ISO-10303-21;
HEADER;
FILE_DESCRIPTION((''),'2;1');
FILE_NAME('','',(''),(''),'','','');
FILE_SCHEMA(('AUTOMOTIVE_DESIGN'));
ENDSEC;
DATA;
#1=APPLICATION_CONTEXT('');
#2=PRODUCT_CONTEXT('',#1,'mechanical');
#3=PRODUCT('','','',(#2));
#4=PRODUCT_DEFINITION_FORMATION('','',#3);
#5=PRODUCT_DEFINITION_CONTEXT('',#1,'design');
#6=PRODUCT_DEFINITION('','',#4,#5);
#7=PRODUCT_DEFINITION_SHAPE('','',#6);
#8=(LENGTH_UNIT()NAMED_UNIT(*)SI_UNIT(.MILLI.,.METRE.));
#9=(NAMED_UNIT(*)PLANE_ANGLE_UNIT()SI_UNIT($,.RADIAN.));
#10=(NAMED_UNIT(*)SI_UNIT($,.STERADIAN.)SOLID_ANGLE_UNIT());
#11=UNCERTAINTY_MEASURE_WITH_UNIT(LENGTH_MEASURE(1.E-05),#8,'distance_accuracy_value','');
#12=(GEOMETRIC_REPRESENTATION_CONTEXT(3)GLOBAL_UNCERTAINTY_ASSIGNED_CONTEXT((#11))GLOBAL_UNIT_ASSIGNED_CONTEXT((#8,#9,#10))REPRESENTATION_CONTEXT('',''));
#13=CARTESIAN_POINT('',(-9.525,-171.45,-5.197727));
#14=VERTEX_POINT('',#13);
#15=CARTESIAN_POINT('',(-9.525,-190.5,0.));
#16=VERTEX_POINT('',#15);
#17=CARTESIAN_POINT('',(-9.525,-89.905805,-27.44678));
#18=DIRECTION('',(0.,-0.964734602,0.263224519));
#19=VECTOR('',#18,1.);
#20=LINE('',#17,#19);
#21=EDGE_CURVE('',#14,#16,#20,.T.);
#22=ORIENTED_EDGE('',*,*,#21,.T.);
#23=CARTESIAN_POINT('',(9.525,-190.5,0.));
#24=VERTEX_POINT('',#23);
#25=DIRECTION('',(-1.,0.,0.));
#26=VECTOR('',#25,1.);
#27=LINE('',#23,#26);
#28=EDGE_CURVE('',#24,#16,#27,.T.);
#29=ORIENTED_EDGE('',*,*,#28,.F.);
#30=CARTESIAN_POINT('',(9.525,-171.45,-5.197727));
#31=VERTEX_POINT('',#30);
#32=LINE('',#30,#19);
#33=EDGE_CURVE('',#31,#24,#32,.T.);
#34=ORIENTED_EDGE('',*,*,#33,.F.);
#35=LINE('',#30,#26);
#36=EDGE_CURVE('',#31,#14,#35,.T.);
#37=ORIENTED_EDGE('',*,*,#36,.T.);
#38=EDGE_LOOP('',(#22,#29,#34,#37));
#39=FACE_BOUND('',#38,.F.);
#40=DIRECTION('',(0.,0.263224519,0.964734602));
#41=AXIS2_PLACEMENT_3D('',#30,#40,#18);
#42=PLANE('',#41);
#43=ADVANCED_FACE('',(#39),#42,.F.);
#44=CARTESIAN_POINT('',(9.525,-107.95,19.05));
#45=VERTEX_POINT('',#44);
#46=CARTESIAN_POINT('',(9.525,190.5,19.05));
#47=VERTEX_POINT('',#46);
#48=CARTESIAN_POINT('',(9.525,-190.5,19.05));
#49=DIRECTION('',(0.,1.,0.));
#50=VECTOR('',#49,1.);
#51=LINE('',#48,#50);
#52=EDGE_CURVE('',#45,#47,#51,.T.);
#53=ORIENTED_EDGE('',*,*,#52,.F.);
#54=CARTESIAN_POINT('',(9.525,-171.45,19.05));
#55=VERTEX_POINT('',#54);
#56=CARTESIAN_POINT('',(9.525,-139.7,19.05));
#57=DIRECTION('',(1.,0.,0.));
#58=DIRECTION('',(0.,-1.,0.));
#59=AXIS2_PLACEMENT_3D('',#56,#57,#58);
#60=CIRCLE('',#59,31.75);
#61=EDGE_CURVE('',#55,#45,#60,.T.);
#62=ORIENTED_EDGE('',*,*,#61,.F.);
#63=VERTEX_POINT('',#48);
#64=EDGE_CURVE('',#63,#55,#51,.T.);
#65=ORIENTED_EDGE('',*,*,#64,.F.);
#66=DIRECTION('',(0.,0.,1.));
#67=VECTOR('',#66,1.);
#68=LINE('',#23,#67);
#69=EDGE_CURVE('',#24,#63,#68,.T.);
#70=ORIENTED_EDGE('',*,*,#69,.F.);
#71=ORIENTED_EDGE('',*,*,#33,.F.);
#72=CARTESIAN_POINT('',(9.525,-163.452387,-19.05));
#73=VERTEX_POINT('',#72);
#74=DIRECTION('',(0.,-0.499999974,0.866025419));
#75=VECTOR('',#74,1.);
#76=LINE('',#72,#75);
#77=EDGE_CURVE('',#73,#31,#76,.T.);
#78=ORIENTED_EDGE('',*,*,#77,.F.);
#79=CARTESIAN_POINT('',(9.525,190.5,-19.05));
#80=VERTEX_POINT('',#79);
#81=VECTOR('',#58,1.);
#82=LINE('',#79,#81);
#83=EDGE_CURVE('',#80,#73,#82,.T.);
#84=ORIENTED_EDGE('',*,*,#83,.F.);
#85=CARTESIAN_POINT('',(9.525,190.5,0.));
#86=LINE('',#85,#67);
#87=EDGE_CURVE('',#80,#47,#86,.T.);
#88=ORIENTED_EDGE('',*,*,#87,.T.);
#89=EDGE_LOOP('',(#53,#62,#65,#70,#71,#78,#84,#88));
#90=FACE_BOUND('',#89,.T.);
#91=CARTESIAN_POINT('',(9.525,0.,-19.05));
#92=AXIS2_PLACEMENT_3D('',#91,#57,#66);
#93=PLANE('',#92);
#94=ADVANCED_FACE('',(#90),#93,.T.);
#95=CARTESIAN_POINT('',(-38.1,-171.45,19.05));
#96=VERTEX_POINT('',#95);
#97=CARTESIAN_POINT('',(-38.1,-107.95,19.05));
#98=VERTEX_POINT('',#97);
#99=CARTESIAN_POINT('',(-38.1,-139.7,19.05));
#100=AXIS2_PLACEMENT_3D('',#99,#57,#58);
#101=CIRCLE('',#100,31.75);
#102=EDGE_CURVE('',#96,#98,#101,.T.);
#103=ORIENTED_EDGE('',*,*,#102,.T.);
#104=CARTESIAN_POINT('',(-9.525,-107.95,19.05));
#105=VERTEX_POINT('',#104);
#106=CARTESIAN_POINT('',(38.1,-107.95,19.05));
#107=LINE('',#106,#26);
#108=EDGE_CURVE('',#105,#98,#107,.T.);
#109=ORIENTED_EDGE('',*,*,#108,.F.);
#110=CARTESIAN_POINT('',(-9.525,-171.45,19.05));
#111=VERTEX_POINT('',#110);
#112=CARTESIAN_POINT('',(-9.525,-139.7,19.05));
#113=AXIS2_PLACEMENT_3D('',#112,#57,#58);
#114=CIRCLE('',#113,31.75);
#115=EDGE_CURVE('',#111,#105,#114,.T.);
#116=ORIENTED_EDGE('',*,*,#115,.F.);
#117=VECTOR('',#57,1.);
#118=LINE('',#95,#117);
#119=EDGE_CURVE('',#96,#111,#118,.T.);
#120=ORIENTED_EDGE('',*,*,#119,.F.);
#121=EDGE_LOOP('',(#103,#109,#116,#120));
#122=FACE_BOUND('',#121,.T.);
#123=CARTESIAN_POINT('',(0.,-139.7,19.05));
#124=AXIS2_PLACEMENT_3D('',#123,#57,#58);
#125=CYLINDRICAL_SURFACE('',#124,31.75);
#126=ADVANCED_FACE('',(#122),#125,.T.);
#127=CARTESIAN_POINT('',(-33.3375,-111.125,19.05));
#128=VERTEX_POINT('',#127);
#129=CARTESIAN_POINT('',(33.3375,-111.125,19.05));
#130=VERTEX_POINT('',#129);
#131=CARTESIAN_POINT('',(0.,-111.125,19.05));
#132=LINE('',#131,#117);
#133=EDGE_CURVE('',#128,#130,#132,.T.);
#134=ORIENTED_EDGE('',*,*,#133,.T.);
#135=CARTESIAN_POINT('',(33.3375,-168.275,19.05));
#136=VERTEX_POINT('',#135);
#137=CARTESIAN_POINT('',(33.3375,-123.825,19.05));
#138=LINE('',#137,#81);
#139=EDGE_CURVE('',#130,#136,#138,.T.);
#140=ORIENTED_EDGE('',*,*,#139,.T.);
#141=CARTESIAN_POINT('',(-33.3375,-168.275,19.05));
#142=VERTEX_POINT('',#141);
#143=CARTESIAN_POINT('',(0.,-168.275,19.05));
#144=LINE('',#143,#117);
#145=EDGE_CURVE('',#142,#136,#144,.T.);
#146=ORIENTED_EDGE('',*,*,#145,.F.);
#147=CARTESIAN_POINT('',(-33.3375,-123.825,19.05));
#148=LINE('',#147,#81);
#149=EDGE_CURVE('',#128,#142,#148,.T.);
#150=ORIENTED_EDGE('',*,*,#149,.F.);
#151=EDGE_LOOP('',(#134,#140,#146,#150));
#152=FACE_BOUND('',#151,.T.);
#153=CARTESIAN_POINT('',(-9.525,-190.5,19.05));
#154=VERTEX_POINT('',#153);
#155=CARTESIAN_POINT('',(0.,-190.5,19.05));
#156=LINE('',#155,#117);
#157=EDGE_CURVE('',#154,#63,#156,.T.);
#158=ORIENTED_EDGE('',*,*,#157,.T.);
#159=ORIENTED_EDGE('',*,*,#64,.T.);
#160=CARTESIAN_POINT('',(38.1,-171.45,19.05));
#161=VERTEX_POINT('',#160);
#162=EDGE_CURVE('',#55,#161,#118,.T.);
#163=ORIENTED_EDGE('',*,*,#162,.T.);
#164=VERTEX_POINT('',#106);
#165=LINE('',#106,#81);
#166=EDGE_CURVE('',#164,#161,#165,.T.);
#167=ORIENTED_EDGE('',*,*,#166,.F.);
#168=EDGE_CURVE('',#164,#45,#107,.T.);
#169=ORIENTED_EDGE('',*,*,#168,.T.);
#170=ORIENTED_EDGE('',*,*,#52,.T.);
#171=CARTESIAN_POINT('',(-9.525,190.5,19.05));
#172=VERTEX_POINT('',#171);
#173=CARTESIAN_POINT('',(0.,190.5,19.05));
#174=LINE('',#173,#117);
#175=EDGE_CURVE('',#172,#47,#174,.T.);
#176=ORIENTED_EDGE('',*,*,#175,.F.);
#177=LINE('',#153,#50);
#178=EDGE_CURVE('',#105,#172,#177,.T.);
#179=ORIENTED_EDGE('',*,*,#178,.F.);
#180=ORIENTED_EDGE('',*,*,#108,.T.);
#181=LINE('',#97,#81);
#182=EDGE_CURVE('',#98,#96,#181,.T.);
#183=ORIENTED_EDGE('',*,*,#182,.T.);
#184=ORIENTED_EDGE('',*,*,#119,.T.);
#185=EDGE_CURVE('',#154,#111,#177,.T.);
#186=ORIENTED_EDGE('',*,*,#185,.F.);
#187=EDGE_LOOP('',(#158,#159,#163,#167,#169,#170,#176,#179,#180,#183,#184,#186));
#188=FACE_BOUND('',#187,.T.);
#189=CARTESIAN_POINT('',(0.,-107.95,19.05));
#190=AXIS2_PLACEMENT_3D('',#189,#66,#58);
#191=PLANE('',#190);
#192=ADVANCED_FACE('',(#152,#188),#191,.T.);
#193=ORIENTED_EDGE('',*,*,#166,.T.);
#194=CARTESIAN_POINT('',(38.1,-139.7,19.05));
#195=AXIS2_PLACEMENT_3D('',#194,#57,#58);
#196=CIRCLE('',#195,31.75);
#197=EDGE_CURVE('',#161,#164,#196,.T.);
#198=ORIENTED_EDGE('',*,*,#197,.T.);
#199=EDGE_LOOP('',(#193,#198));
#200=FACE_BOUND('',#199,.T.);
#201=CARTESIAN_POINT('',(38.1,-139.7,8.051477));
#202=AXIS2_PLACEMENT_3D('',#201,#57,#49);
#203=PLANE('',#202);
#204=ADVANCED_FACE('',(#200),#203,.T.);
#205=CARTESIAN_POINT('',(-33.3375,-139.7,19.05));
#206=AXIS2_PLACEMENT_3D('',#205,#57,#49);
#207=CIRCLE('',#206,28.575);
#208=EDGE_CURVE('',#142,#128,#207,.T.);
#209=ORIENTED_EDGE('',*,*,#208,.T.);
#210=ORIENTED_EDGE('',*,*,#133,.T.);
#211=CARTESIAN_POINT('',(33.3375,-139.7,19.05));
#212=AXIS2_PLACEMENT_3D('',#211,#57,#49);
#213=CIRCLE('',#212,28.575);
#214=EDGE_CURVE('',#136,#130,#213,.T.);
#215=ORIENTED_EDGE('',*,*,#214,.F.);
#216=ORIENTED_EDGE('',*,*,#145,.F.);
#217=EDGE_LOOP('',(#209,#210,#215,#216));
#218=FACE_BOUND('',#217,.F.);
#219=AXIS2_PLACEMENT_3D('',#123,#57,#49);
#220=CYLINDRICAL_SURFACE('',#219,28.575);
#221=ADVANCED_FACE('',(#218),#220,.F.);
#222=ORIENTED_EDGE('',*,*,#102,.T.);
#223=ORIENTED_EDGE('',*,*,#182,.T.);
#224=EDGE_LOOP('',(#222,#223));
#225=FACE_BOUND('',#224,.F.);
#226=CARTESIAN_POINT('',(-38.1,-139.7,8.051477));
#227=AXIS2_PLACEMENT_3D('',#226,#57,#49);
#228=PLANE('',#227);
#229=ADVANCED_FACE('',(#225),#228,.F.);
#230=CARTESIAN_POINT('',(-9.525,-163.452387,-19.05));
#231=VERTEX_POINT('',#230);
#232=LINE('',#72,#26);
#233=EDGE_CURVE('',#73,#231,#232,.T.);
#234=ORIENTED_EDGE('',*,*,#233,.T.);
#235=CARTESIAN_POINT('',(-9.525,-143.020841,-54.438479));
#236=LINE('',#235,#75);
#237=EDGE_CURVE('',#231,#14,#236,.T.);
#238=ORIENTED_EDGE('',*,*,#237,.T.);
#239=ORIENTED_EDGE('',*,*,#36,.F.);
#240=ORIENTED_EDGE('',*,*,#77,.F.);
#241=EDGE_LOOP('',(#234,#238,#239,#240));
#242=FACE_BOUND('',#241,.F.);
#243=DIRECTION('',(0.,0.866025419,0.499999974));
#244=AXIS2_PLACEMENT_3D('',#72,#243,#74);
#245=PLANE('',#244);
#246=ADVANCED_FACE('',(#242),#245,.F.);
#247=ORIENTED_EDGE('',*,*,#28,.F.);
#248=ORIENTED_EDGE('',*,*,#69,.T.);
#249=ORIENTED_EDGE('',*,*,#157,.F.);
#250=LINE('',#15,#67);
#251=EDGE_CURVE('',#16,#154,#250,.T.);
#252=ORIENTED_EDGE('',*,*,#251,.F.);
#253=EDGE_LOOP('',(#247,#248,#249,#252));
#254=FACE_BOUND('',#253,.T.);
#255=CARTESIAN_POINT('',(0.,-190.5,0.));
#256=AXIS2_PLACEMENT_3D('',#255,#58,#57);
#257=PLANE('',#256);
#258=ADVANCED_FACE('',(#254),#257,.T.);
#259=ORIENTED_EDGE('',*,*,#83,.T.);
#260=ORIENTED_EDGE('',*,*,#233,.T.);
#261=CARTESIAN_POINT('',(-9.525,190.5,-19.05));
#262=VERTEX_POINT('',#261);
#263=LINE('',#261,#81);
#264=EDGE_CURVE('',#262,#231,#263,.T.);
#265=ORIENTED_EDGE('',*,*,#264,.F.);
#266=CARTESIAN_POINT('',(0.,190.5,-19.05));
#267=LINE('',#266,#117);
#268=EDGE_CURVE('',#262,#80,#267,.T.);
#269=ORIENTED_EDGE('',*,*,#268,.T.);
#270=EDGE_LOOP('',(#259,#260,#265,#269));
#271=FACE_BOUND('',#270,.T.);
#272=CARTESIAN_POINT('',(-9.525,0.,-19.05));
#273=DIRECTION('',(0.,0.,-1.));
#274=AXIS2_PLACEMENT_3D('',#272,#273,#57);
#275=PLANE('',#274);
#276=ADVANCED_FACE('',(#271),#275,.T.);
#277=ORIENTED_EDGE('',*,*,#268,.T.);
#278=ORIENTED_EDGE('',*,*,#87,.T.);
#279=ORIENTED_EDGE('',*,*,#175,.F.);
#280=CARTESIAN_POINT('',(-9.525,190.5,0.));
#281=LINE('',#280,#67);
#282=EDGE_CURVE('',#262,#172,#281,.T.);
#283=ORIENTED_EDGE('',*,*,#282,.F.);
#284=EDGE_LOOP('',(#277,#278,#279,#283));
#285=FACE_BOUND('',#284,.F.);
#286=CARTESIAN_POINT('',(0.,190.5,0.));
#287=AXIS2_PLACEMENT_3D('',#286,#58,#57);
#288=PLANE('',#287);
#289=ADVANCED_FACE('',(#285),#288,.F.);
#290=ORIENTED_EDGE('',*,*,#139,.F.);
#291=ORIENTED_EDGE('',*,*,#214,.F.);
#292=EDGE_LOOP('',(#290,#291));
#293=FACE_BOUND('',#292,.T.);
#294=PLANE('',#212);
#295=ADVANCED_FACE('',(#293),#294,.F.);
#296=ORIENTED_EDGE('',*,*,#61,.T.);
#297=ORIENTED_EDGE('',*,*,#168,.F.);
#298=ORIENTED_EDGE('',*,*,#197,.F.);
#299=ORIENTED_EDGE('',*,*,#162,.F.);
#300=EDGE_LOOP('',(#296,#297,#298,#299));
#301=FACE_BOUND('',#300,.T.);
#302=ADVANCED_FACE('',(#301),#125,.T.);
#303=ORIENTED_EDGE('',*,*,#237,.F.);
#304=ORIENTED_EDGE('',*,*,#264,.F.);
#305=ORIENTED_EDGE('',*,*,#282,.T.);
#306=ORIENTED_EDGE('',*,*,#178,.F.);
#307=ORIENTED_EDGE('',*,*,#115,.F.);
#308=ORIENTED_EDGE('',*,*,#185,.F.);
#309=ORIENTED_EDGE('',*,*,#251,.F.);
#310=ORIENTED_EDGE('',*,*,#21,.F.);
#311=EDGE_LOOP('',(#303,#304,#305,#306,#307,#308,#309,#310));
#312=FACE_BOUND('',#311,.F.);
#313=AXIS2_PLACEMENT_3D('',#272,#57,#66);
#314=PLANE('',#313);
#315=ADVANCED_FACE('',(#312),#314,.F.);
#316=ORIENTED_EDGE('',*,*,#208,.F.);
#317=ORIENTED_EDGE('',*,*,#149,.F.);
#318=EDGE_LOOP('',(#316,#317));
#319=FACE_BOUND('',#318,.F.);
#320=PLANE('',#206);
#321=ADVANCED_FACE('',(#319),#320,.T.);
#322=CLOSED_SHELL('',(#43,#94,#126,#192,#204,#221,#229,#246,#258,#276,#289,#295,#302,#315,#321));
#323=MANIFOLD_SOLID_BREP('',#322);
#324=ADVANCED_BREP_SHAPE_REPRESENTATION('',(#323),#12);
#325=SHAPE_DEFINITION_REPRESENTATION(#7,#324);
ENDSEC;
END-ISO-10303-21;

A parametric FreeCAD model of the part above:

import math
import FreeCAD as App
import Part
import Sketcher
Q = App.Units.Quantity


def add_polygon(sketch, points):
    """Adds a closed chain of lines whose ends are joined by coincident constraints."""
    first, n = sketch.GeometryCount, len(points)
    for a, b in zip(points, points[1:] + points[:1]):
        sketch.addGeometry(Part.LineSegment(App.Vector(*a, 0), App.Vector(*b, 0)), False)
    for i in range(n):
        sketch.addConstraint(Sketcher.Constraint("Coincident", first + i, 2, first + (i + 1) % n, 1))

doc = App.newDocument("Part")
params = doc.addObject("Spreadsheet::Sheet", "Params")
for row, (alias, value) in enumerate([
    ("sketch1_height", "1.5 in"),
    ("sketch1_width", "0.75 in"),
    ("pad1_length", "15 in"),
    ("sketch2_radius", "1.25 in"),
    ("pad2_length", "3 in"),
    ("sketch3_width", "2.625 in"),
    ("sketch3_height", "1.125 in"),
    ("groove_angle", "360 deg"),
    ("sketch4_height", "0.75 in"),
], start=1):
    params.set(f"A{row}", alias)
    params.set(f"B{row}", "=" + value)
    params.setAlias(f"B{row}", alias)

body = doc.addObject("PartDesign::Body", "Body")

sketch1 = doc.addObject("Sketcher::SketchObject", "Sketch")
body.addObject(sketch1)
sketch1.AttachmentSupport = (doc.XZ_Plane, [""])
sketch1.MapMode = "FlatFace"
add_polygon(sketch1, [(-10, 19), (-10, -19), (10, -19), (10, 19)])
sketch1.addConstraint([
    Sketcher.Constraint("Vertical", 0),
    Sketcher.Constraint("Horizontal", 1),
    Sketcher.Constraint("Vertical", 2),
    Sketcher.Constraint("Horizontal", 3),
    Sketcher.Constraint("Symmetric", 0, 2, 2, 2, -1, 1),
    Sketcher.Constraint("DistanceY", 0, 2, 0, 1, Q("1.5 in")),
    Sketcher.Constraint("DistanceX", 1, 1, 1, 2, Q("0.75 in")),
])
sketch1.setExpression("Constraints[9]", "Params.sketch1_height")
sketch1.setExpression("Constraints[10]", "Params.sketch1_width")
pad1 = doc.addObject("PartDesign::Pad", "Pad")
body.addObject(pad1)
pad1.Profile = sketch1
pad1.setExpression("Length", "Params.pad1_length")
pad1.Midplane = True

sketch2 = doc.addObject("Sketcher::SketchObject", "Sketch001")
body.addObject(sketch2)
sketch2.AttachmentSupport = (doc.YZ_Plane, [""])
sketch2.MapMode = "FlatFace"
sketch2.addGeometry([
    Part.LineSegment(App.Vector(-108, 19, 0), App.Vector(-171, 19, 0)),
    Part.ArcOfCircle(Part.Circle(App.Vector(-140, 19, 0), App.Vector(0, 0, 1), 32), math.radians(180), math.radians(360)),
], False)
sketch2.addConstraint([
    Sketcher.Constraint("Coincident", 0, 1, 1, 2),
    Sketcher.Constraint("Coincident", 1, 1, 0, 2),
    Sketcher.Constraint("Horizontal", 0),
    Sketcher.Constraint("Horizontal", 1, 3, 0, 1),
    Sketcher.Constraint("Radius", 1, Q("1.25 in")),
    Sketcher.Constraint("DistanceX", 1, 3, -1, 1, Q("5.5 in")),
    Sketcher.Constraint("DistanceY", -1, 1, 1, 3, Q("0.75 in")),
])
sketch2.setExpression("Constraints[4]", "Params.sketch2_radius")
pad2 = doc.addObject("PartDesign::Pad", "Pad001")
body.addObject(pad2)
pad2.Profile = sketch2
pad2.setExpression("Length", "Params.pad2_length")
pad2.Midplane = True

sketch3 = doc.addObject("Sketcher::SketchObject", "Sketch002")
body.addObject(sketch3)
sketch3.AttachmentSupport = (doc.XY_Plane, [""])
sketch3.MapMode = "FlatFace"
sketch3.AttachmentOffset = App.Placement(App.Vector(0, 0, 0.75 * 25.4), App.Rotation())
add_polygon(sketch3, [(-33, -111), (-33, -140), (33, -140), (33, -111)])
sketch3.addGeometry(Part.LineSegment(App.Vector(-33, -140, 0), App.Vector(33, -140, 0)), True)
sketch3.addConstraint([
    Sketcher.Constraint("Vertical", 0),
    Sketcher.Constraint("Horizontal", 1),
    Sketcher.Constraint("Vertical", 2),
    Sketcher.Constraint("Horizontal", 3),
    Sketcher.Constraint("Horizontal", 4),
    Sketcher.Constraint("Coincident", 4, 1, 0, 2),
    Sketcher.Constraint("Vertical", 2, 2, 4, 2),
    Sketcher.Constraint("DistanceY", 0, 2, -1, 1, Q("5.5 in")),
    Sketcher.Constraint("DistanceX", 1, 1, 1, 2, Q("2.625 in")),
    Sketcher.Constraint("DistanceY", 0, 2, 0, 1, Q("1.125 in")),
    Sketcher.Constraint("DistanceX", 0, 2, -1, 1, Q("1.3125 in")),
])
sketch3.setExpression("Constraints[12]", "Params.sketch3_width")
sketch3.setExpression("Constraints[13]", "Params.sketch3_height")
groove = doc.addObject("PartDesign::Groove", "Groove")
body.addObject(groove)
groove.Profile = sketch3
groove.ReferenceAxis = (sketch3, ["Axis0"])
groove.setExpression("Angle", "Params.groove_angle")

sketch4 = doc.addObject("Sketcher::SketchObject", "Sketch003")
body.addObject(sketch4)
sketch4.AttachmentSupport = (doc.YZ_Plane, [""])
sketch4.MapMode = "FlatFace"
sketch4.AttachmentOffset = App.Placement(App.Vector(0, 0, 0.375 * 25.4), App.Rotation())
add_polygon(sketch4, [(-171, -5), (-190, 0), (-190, -19), (-163, -19)])
sketch4.addConstraint([
    Sketcher.Constraint("Vertical", 1),
    Sketcher.Constraint("Horizontal", 2),
    Sketcher.Constraint("PointOnObject", 0, 2, -1),
    Sketcher.Constraint("Angle", 3, Q("119.999998 deg")),
    Sketcher.Constraint("DistanceY", 1, 2, 1, 1, Q("0.75 in")),
    Sketcher.Constraint("DistanceX", 0, 2, -1, 1, Q("7.5 in")),
    Sketcher.Constraint("DistanceX", 3, 2, -1, 1, Q("6.75 in")),
    Sketcher.Constraint("DistanceX", 2, 1, 2, 2, Q("27.047613 mm")),
])
sketch4.setExpression("Constraints[8]", "Params.sketch4_height")
pocket1 = doc.addObject("PartDesign::Pocket", "Pocket")
body.addObject(pocket1)
pocket1.Profile = sketch4
pocket1.Type = "ThroughAll"

doc.recompute()
